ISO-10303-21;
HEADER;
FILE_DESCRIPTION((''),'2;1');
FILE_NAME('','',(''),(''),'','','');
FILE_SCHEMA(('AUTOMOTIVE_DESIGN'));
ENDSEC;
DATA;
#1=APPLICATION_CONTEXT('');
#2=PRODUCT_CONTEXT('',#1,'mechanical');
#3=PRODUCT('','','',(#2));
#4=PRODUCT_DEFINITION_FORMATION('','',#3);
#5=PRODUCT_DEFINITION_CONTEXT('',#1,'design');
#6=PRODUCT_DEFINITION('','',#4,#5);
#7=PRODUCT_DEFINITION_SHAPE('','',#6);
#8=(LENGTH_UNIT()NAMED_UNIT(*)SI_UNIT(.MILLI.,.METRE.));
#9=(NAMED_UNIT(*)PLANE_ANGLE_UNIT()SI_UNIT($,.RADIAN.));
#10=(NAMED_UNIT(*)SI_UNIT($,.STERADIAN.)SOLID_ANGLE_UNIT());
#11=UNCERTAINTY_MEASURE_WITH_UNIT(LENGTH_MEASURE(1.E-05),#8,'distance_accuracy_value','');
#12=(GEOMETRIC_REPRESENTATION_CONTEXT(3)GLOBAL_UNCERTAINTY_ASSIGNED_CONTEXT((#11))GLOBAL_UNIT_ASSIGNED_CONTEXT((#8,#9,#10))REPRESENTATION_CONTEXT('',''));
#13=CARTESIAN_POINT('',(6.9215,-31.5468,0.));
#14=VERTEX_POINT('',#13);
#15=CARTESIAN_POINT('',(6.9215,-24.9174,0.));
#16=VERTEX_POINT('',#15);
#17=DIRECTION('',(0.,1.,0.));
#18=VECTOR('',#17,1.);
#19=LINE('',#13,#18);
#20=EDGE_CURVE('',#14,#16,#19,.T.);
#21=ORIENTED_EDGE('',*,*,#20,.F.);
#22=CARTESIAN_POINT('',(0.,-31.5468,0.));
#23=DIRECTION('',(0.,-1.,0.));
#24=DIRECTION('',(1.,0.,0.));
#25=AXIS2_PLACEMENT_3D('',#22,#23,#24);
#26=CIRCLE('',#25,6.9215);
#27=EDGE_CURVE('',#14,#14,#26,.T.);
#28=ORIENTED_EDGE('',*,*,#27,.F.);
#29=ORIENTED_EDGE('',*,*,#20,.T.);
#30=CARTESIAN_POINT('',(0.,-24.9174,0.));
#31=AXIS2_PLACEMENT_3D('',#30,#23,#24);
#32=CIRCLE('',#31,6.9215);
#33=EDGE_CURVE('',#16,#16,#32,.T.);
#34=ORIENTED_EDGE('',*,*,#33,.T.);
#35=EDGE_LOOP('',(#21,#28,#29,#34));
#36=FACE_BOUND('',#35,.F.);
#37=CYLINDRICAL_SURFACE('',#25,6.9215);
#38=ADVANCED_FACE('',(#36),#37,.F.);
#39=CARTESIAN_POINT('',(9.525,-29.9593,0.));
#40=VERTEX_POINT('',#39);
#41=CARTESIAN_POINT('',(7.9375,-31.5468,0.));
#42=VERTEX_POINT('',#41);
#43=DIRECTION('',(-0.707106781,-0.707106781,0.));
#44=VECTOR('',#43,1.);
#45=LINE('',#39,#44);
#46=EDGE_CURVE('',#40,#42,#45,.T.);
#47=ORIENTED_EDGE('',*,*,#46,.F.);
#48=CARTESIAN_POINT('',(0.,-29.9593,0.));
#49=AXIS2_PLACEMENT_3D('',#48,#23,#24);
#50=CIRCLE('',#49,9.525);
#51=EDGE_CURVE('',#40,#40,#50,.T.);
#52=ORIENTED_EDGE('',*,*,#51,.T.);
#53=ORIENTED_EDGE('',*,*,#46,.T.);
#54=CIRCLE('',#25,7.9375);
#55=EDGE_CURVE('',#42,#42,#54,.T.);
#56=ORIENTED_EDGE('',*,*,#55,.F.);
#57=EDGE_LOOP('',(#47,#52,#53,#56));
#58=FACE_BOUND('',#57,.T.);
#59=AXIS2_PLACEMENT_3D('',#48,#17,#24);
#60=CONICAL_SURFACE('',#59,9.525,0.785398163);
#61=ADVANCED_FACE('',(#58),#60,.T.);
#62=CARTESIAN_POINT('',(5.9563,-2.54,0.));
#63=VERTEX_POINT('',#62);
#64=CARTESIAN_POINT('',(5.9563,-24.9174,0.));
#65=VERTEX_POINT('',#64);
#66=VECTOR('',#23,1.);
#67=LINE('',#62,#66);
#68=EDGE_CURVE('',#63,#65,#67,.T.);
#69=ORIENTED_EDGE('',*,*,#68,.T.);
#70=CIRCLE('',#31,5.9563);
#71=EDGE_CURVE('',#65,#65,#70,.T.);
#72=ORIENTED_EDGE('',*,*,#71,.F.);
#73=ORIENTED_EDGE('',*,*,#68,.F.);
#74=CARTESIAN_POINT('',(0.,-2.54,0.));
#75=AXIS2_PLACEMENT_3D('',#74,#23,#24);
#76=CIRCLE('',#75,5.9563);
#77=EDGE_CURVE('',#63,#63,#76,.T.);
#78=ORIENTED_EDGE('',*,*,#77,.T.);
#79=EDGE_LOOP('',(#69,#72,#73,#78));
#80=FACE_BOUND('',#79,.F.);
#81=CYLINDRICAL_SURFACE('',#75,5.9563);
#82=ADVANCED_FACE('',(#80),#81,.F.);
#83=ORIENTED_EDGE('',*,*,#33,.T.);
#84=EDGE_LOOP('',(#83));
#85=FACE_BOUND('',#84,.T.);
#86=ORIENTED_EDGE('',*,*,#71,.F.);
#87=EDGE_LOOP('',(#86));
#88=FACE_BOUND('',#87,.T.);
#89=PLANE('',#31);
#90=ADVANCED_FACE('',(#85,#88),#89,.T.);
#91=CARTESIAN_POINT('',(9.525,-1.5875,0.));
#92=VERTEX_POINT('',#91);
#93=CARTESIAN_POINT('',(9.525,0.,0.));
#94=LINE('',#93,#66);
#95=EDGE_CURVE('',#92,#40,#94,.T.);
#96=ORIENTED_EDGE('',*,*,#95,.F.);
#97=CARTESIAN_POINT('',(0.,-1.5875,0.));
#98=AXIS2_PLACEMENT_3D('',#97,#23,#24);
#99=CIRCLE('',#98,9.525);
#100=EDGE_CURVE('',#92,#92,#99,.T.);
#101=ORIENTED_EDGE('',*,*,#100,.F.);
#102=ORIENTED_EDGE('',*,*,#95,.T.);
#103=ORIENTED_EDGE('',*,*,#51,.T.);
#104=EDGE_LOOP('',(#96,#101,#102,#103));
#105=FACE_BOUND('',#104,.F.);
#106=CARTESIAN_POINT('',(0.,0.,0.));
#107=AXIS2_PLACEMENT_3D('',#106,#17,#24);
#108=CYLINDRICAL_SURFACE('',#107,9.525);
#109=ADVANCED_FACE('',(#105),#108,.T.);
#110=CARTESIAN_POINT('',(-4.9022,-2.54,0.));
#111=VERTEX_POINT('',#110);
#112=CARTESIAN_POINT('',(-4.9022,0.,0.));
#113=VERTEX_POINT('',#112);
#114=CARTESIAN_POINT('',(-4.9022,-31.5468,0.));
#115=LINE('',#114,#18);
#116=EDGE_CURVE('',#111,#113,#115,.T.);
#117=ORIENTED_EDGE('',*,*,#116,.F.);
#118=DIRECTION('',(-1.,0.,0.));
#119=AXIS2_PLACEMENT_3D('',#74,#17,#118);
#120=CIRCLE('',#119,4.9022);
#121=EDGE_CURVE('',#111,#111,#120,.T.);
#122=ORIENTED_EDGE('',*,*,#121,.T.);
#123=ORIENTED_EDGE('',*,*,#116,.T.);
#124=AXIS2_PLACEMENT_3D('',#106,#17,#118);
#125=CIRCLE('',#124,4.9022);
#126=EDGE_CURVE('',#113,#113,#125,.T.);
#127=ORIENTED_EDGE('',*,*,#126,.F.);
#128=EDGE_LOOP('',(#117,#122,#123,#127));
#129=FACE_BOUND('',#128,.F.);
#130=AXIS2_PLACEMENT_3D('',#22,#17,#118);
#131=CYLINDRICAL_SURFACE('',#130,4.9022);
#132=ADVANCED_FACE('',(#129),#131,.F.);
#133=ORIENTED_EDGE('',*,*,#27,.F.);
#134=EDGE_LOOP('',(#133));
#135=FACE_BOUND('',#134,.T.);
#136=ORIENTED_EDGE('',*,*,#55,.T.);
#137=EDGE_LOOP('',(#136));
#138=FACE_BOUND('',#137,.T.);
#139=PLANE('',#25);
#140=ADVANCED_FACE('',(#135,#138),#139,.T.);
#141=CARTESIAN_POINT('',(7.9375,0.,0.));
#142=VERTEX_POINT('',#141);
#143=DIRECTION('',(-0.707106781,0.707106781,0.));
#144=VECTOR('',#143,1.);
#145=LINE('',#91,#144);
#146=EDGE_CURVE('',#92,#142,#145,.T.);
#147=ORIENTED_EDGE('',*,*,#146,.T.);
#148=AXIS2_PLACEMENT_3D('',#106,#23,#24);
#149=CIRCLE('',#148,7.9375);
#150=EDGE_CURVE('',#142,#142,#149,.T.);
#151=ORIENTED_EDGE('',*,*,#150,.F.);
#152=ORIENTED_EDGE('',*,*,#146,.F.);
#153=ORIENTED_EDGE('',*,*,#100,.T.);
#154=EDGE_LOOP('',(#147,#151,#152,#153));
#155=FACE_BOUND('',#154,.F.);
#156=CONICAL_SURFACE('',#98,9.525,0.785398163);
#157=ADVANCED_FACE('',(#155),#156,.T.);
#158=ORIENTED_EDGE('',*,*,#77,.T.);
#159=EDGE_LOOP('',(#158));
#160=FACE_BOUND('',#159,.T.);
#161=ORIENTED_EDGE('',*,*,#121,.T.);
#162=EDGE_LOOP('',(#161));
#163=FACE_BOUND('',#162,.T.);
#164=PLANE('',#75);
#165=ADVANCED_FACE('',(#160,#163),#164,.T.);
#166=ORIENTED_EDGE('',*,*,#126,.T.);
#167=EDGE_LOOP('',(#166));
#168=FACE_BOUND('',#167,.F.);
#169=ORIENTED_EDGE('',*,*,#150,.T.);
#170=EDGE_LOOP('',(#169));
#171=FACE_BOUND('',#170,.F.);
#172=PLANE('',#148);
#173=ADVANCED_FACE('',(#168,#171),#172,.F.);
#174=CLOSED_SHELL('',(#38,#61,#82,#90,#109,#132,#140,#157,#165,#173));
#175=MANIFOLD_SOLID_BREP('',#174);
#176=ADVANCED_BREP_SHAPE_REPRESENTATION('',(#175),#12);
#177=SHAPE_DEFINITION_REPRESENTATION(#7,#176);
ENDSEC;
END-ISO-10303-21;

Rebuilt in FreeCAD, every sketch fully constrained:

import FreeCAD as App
import Part
import Sketcher
from FreeCAD import Vector
Q = App.Units.Quantity


def edges_at(feature, points):
    """Names of the edges that pass closest to the given points."""
    edges = feature.Shape.Edges
    near = lambda p: min(range(len(edges)), key=lambda i: edges[i].distToShape(Part.Vertex(*p))[0])
    return sorted({f"Edge{near(p) + 1}" for p in points})

doc = App.newDocument("Part")
body = doc.addObject("PartDesign::Body", "Body")

sketch1 = doc.addObject("Sketcher::SketchObject", "Sketch")
body.addObject(sketch1)
sketch1.AttachmentSupport = (doc.XZ_Plane, [""])
sketch1.MapMode = "FlatFace"
sketch1.addGeometry(Part.Circle(Vector(0, 0, 0), Vector(0, 0, 1), 9.525), False)
sketch1.addConstraint(Sketcher.Constraint("Coincident", 0, 3, -1, 1))
sketch1.addConstraint(Sketcher.Constraint("Diameter", 0, Q("0.75 in")))
pad1 = doc.addObject("PartDesign::Pad", "Pad")
body.addObject(pad1)
pad1.Profile = sketch1
pad1.Length = Q("1.242 in")

sketch2 = doc.addObject("Sketcher::SketchObject", "Sketch001")
body.addObject(sketch2)
sketch2.AttachmentSupport = (doc.XZ_Plane, [""])
sketch2.MapMode = "FlatFace"
sketch2.AttachmentOffset = App.Placement(Vector(0, 0, 1.242 * 25.4), App.Rotation())
sketch2.addGeometry(Part.Circle(Vector(0, 0, 0), Vector(0, 0, 1), 4.9022), False)
sketch2.addConstraint(Sketcher.Constraint("Coincident", 0, 3, -1, 1))
sketch2.addConstraint(Sketcher.Constraint("Diameter", 0, Q("0.386 in")))
doc.recompute()
hole = doc.addObject("PartDesign::Hole", "Hole")
body.addObject(hole)
hole.Profile = sketch2
hole.ThreadType = "None"
hole.Diameter = Q("0.386 in")
hole.DepthType = "ThroughAll"
hole.HoleCutType = "Counterbore"
hole.HoleCutDiameter = Q("0.469 in")
hole.HoleCutDepth = Q("1.142 in")

sketch3 = doc.addObject("Sketcher::SketchObject", "Sketch002")
body.addObject(sketch3)
sketch3.AttachmentSupport = (doc.XZ_Plane, [""])
sketch3.MapMode = "FlatFace"
sketch3.AttachmentOffset = App.Placement(Vector(0, 0, 1.242 * 25.4), App.Rotation())
sketch3.addGeometry(Part.Circle(Vector(0, 0, 0), Vector(0, 0, 1), 6.9215), False)
sketch3.addConstraint(Sketcher.Constraint("Coincident", 0, 3, -1, 1))
sketch3.addConstraint(Sketcher.Constraint("Diameter", 0, Q("0.545 in")))
pocket1 = doc.addObject("PartDesign::Pocket", "Pocket")
body.addObject(pocket1)
pocket1.Profile = sketch3
pocket1.Length = Q("0.261 in")
doc.recompute()

chamfer = doc.addObject("PartDesign::Chamfer", "Chamfer")
body.addObject(chamfer)
chamfer.Base = (pocket1, edges_at(pocket1, [(-9.525, -31.547, 0), (-9.525, 0, 0)]))
chamfer.ChamferType = "Two distances"
chamfer.Size = Q("0.0625 in")
chamfer.Size2 = Q("0.0625 in")

doc.recompute()
